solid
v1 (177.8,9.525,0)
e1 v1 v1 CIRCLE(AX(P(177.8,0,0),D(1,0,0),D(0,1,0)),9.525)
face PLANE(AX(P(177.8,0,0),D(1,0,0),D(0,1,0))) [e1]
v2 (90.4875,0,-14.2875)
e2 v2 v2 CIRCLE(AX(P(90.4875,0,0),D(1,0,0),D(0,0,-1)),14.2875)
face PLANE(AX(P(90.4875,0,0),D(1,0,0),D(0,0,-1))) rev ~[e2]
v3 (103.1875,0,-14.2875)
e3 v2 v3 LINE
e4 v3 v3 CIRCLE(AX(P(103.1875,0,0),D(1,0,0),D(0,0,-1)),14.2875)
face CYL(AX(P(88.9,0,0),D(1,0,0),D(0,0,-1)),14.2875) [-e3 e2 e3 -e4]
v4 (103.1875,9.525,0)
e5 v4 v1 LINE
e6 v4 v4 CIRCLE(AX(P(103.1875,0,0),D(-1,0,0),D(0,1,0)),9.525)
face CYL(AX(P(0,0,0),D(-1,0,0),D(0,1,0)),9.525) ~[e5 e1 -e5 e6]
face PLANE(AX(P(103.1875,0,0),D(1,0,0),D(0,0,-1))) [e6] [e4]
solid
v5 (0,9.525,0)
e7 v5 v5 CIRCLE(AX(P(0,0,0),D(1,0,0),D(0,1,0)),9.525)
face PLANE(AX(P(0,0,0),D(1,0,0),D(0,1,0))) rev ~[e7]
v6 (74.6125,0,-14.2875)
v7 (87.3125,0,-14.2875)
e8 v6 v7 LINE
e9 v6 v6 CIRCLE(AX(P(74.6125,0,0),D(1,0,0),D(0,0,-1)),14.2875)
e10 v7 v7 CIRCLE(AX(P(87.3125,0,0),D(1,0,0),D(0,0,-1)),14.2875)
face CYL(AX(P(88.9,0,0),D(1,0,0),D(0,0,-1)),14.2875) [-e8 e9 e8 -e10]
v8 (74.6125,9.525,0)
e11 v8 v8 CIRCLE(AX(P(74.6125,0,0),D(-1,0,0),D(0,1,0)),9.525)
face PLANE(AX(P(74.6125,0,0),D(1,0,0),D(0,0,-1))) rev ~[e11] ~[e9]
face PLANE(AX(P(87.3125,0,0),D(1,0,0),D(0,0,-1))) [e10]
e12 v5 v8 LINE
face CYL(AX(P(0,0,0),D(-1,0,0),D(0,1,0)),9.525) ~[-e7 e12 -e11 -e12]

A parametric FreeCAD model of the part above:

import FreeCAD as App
import Part
import Sketcher
from FreeCAD import Vector
Q = App.Units.Quantity

doc = App.newDocument("Part")
body = doc.addObject("PartDesign::Body", "Body")
body.AllowCompound = True

sketch1 = doc.addObject("Sketcher::SketchObject", "Sketch")
body.addObject(sketch1)
sketch1.AttachmentSupport = (doc.YZ_Plane, [""])
sketch1.MapMode = "FlatFace"
sketch1.addGeometry(Part.Circle(Vector(0, 0, 0), Vector(0, 0, 1), 10), False)
sketch1.addConstraint(Sketcher.Constraint("Coincident", 0, 3, -1, 1))
sketch1.addConstraint(Sketcher.Constraint("Diameter", 0, Q("0.75 in")))
pad1 = doc.addObject("PartDesign::Pad", "Pad")
body.addObject(pad1)
pad1.Profile = sketch1
pad1.Length = Q("7 in")

sketch2 = doc.addObject("Sketcher::SketchObject", "Sketch001")
body.addObject(sketch2)
sketch2.AttachmentSupport = (doc.YZ_Plane, [""])
sketch2.MapMode = "FlatFace"
sketch2.AttachmentOffset = App.Placement(Vector(0, 0, 3.5 * 25.4), App.Rotation())
sketch2.addGeometry(Part.Circle(Vector(0, 0, 0), Vector(0, 0, 1), 14), False)
sketch2.addConstraint(Sketcher.Constraint("Coincident", 0, 3, -1, 1))
sketch2.addConstraint(Sketcher.Constraint("Diameter", 0, Q("1.125 in")))
pad2 = doc.addObject("PartDesign::Pad", "Pad001")
body.addObject(pad2)
pad2.Profile = sketch2
pad2.Length = Q("1.125 in")
pad2.Midplane = True

sketch3 = doc.addObject("Sketcher::SketchObject", "Sketch002")
body.addObject(sketch3)
sketch3.AttachmentSupport = (doc.YZ_Plane, [""])
sketch3.MapMode = "FlatFace"
sketch3.AttachmentOffset = App.Placement(Vector(0, 0, 3.5 * 25.4), App.Rotation())
sketch3.addGeometry(Part.Circle(Vector(0, 0, 0), Vector(0, 0, 1), 14), False)
sketch3.addConstraint(Sketcher.Constraint("Coincident", 0, 3, -1, 1))
sketch3.addConstraint(Sketcher.Constraint("Diameter", 0, Q("1.125 in")))
pocket1 = doc.addObject("PartDesign::Pocket", "Pocket")
body.addObject(pocket1)
pocket1.Profile = sketch3
pocket1.Length = Q("0.125 in")
pocket1.Midplane = True

doc.recompute()
